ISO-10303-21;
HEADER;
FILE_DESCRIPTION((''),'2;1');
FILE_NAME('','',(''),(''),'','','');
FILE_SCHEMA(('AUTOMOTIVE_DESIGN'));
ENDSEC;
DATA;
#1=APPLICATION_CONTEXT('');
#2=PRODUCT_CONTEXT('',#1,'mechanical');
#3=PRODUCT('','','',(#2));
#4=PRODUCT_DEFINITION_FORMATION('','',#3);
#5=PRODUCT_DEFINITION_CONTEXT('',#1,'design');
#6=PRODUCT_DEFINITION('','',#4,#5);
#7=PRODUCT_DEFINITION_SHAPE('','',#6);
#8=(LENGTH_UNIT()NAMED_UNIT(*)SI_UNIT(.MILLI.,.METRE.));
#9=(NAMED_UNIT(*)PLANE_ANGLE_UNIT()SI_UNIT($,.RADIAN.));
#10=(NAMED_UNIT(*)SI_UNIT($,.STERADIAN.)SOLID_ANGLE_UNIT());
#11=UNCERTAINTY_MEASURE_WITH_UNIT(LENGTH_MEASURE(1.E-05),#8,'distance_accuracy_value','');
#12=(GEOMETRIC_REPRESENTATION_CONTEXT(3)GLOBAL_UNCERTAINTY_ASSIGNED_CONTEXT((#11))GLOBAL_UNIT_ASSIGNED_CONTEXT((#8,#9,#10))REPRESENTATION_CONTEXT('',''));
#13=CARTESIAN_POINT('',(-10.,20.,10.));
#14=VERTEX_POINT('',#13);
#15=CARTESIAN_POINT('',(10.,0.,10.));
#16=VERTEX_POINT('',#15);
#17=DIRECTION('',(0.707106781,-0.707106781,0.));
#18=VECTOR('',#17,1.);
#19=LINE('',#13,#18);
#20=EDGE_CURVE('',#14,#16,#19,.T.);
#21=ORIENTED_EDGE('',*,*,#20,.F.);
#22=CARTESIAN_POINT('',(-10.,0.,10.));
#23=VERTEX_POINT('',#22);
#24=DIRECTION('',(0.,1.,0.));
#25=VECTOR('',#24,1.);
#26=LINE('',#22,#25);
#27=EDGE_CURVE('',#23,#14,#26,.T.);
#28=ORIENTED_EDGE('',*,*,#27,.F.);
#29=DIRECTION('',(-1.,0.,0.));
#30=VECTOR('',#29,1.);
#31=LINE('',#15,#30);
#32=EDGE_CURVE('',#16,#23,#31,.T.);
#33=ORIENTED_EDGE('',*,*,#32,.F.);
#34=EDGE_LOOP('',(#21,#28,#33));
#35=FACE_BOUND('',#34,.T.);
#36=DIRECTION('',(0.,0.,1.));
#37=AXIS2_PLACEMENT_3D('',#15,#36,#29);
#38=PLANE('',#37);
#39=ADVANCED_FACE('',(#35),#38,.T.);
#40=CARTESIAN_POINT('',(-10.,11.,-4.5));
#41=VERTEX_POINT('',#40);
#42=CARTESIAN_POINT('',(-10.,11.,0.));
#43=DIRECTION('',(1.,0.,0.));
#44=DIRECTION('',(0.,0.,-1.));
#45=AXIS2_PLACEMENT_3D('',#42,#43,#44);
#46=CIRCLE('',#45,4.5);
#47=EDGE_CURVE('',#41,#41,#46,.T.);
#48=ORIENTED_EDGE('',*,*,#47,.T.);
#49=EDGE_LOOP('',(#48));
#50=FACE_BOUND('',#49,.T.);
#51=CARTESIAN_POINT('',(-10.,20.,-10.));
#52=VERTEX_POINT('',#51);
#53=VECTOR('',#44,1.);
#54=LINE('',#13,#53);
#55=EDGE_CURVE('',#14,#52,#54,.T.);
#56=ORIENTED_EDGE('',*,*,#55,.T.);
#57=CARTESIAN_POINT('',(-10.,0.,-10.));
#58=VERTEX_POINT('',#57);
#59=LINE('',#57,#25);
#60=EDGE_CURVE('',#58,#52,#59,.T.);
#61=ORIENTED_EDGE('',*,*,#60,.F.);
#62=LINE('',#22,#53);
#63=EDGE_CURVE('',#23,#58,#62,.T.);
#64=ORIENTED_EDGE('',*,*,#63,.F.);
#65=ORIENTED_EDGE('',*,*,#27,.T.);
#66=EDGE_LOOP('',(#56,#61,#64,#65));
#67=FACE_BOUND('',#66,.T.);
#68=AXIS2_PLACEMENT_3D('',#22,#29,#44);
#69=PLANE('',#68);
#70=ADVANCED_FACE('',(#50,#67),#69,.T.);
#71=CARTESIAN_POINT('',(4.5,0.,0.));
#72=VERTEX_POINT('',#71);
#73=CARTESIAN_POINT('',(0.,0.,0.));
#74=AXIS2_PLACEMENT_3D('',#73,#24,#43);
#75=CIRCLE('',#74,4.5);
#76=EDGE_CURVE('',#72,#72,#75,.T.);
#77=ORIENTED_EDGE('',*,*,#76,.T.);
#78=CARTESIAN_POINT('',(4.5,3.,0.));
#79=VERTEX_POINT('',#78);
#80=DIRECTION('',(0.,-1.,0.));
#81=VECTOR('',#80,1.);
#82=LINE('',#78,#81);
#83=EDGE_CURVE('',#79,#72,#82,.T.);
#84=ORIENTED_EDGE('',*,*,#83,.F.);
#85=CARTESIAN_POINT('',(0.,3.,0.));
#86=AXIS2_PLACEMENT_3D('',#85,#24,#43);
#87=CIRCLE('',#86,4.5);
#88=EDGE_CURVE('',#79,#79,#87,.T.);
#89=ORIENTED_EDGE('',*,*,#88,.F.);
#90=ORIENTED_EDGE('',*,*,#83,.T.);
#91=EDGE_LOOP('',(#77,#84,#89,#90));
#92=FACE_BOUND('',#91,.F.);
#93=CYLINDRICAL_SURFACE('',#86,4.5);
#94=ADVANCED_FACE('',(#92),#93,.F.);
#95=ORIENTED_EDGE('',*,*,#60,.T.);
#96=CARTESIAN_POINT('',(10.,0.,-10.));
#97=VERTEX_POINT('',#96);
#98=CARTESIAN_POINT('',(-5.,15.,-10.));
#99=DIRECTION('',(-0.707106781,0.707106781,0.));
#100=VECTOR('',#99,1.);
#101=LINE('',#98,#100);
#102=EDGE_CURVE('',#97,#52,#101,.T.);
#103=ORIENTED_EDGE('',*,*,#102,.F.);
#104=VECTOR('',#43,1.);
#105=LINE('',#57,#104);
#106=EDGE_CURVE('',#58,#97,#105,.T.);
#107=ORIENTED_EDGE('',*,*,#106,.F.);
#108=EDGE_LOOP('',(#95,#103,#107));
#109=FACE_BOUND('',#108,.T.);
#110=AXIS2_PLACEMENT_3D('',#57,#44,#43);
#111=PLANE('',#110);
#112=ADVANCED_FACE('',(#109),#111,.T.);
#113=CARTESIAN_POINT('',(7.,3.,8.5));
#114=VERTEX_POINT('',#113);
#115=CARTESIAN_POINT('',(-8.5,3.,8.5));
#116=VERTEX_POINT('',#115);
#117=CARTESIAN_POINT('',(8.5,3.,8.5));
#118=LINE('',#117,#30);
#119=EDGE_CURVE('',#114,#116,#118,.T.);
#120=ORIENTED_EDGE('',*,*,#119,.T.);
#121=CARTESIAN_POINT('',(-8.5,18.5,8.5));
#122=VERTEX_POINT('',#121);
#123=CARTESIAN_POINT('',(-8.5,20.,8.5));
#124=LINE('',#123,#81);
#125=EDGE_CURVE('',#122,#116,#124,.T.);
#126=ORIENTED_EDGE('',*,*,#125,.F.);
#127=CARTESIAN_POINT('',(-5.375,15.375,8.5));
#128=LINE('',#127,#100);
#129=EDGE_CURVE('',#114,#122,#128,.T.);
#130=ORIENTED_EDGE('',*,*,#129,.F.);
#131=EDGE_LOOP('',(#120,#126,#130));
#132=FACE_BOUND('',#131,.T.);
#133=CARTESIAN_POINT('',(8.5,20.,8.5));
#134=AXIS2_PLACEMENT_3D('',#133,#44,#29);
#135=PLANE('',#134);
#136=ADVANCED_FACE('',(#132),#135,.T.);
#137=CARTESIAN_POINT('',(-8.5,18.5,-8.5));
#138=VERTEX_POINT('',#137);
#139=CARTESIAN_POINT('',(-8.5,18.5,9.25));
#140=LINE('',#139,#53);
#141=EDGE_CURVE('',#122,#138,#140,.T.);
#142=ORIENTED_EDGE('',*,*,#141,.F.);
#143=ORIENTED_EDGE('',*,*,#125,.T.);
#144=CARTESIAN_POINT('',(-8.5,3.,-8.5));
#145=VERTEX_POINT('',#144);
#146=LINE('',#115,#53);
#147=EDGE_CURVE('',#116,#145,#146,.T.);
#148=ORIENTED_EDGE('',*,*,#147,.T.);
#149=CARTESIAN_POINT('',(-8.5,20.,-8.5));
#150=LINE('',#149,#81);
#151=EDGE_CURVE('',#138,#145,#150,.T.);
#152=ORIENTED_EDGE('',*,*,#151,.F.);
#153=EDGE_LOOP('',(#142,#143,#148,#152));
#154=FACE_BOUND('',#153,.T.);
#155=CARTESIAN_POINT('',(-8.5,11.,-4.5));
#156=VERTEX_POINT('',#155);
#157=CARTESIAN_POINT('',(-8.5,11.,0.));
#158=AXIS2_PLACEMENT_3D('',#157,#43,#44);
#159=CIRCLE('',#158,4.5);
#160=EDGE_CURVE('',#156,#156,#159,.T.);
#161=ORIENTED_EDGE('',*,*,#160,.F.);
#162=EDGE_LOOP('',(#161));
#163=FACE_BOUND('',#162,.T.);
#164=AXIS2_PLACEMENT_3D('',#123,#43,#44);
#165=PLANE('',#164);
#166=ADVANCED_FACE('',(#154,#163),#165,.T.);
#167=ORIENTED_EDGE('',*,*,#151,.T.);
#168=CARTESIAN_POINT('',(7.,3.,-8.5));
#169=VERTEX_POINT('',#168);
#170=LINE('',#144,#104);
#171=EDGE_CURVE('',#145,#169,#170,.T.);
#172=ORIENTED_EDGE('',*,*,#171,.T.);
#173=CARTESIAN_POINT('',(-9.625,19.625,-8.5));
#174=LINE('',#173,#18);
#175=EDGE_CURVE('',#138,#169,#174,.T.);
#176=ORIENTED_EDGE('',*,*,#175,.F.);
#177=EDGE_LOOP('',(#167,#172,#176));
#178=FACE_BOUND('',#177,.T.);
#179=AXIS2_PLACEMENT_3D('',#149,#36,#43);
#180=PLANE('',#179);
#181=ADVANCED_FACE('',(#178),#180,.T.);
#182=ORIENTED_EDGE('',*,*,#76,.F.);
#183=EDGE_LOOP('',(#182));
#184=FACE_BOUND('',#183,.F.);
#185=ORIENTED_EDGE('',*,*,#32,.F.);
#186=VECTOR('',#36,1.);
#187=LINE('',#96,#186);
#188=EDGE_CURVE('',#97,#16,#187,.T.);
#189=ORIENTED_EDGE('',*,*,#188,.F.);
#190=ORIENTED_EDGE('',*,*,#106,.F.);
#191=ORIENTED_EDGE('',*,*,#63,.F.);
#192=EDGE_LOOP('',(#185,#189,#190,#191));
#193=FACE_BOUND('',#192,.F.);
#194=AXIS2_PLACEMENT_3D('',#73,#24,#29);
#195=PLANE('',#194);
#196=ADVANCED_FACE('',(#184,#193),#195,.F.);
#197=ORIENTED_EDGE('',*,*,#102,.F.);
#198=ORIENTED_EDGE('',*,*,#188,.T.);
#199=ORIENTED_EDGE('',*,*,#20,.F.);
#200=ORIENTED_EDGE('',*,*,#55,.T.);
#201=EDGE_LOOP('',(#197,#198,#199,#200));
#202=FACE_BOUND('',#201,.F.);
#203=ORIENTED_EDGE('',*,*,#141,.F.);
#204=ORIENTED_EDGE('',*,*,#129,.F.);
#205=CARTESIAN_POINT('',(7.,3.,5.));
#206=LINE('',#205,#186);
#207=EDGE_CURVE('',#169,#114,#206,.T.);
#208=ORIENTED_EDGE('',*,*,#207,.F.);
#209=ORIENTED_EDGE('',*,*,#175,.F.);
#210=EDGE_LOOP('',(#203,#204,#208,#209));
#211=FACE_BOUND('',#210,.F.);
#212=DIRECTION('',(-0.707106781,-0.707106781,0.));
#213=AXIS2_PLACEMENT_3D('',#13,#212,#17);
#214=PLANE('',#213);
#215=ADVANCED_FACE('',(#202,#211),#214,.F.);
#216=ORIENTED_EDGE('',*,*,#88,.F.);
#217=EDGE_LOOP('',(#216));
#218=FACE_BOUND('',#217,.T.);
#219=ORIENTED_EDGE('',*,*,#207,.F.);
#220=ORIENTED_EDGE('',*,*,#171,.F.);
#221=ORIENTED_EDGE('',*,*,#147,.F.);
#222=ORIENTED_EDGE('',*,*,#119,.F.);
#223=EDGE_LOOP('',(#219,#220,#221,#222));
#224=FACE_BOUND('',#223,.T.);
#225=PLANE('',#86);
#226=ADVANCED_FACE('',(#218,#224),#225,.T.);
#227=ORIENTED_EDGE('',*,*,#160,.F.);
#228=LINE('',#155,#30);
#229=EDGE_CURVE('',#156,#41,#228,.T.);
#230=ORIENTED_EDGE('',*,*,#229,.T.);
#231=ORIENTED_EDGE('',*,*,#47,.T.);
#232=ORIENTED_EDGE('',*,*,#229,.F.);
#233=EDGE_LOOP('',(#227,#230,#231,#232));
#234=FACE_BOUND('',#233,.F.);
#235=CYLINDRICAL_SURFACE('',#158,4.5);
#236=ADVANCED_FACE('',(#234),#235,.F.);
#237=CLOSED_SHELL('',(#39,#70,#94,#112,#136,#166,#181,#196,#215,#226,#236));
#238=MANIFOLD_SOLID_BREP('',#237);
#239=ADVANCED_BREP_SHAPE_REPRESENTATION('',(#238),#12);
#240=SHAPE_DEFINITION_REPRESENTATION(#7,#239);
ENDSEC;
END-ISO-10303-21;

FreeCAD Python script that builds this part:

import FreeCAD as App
import Part
import Sketcher
from FreeCAD import Vector
Q = App.Units.Quantity

doc = App.newDocument("Part")
body = doc.addObject("PartDesign::Body", "Body")

# Sketch on XZ plane
sketch1 = body.newObject("Sketcher::SketchObject", "Sketch")
sketch1.AttachmentSupport = (doc.getObject("XZ_Plane"), [""])
sketch1.MapMode = "FlatFace"
sketch1.addGeometry(Part.LineSegment(Vector(-10, 10, 0), Vector(10, 10, 0)), False)
sketch1.addGeometry(Part.LineSegment(Vector(10, 10, 0), Vector(10, -10, 0)), False)
sketch1.addGeometry(Part.LineSegment(Vector(10, -10, 0), Vector(-10, -10, 0)), False)
sketch1.addGeometry(Part.LineSegment(Vector(-10, -10, 0), Vector(-10, 10, 0)), False)
sketch1.addConstraint(Sketcher.Constraint("Coincident", 0, 2, 1, 1))
sketch1.addConstraint(Sketcher.Constraint("Coincident", 1, 2, 2, 1))
sketch1.addConstraint(Sketcher.Constraint("Coincident", 2, 2, 3, 1))
sketch1.addConstraint(Sketcher.Constraint("Coincident", 3, 2, 0, 1))
sketch1.addConstraint(Sketcher.Constraint("Horizontal", 0))
sketch1.addConstraint(Sketcher.Constraint("Vertical", 1))
sketch1.addConstraint(Sketcher.Constraint("Horizontal", 2))
sketch1.addConstraint(Sketcher.Constraint("Vertical", 3))
sketch1.addConstraint(Sketcher.Constraint("Symmetric", 0, 2, 2, 2, -1, 1))
sketch1.addConstraint(Sketcher.Constraint("Equal", 2, 1))
sketch1.addConstraint(Sketcher.Constraint("DistanceX", 0, 1, 0, 2, Q("20 mm")))
pad1 = body.newObject("PartDesign::Pad", "Pad")
pad1.Profile = sketch1
pad1.Length = 20
pad1.Reversed = True

# Sketch on XZ plane
sketch2 = body.newObject("Sketcher::SketchObject", "Sketch001")
sketch2.AttachmentSupport = (doc.getObject("XZ_Plane"), [""])
sketch2.MapMode = "FlatFace"
sketch2.AttachmentOffset = App.Placement(Vector(0, 0, -20), App.Rotation())
sketch2.addGeometry(Part.LineSegment(Vector(-8, 8, 0), Vector(8, 8, 0)), False)
sketch2.addGeometry(Part.LineSegment(Vector(8, 8, 0), Vector(8, -8, 0)), False)
sketch2.addGeometry(Part.LineSegment(Vector(8, -8, 0), Vector(-8, -8, 0)), False)
sketch2.addGeometry(Part.LineSegment(Vector(-8, -8, 0), Vector(-8, 8, 0)), False)
sketch2.addConstraint(Sketcher.Constraint("Coincident", 0, 2, 1, 1))
sketch2.addConstraint(Sketcher.Constraint("Coincident", 1, 2, 2, 1))
sketch2.addConstraint(Sketcher.Constraint("Coincident", 2, 2, 3, 1))
sketch2.addConstraint(Sketcher.Constraint("Coincident", 3, 2, 0, 1))
sketch2.addConstraint(Sketcher.Constraint("Horizontal", 0))
sketch2.addConstraint(Sketcher.Constraint("Vertical", 1))
sketch2.addConstraint(Sketcher.Constraint("Horizontal", 2))
sketch2.addConstraint(Sketcher.Constraint("Vertical", 3))
sketch2.addConstraint(Sketcher.Constraint("Symmetric", 0, 2, 2, 2, -1, 1))
sketch2.addConstraint(Sketcher.Constraint("Equal", 2, 1))
sketch2.addConstraint(Sketcher.Constraint("DistanceX", 0, 1, 0, 2, Q("17 mm")))
pocket1 = body.newObject("PartDesign::Pocket", "Pocket")
pocket1.Profile = sketch2
pocket1.Length = 17
pocket1.Reversed = True

# Sketch on XY plane
sketch3 = body.newObject("Sketcher::SketchObject", "Sketch002")
sketch3.AttachmentSupport = (doc.getObject("XY_Plane"), [""])
sketch3.MapMode = "FlatFace"
sketch3.AttachmentOffset = App.Placement(Vector(0, 0, 10), App.Rotation())
sketch3.addGeometry(Part.LineSegment(Vector(10, 20, 0), Vector(-10, 20, 0)), False)
sketch3.addGeometry(Part.LineSegment(Vector(-10, 20, 0), Vector(10, 0, 0)), False)
sketch3.addGeometry(Part.LineSegment(Vector(10, 0, 0), Vector(10, 20, 0)), False)
sketch3.addConstraint(Sketcher.Constraint("Coincident", 0, 2, 1, 1))
sketch3.addConstraint(Sketcher.Constraint("Coincident", 1, 2, 2, 1))
sketch3.addConstraint(Sketcher.Constraint("Coincident", 2, 2, 0, 1))
sketch3.addConstraint(Sketcher.Constraint("Horizontal", 0))
sketch3.addConstraint(Sketcher.Constraint("Vertical", 2))
sketch3.addConstraint(Sketcher.Constraint("PointOnObject", 1, 2, -1))
sketch3.addConstraint(Sketcher.Constraint("Equal", 0, 2))
sketch3.addConstraint(Sketcher.Constraint("DistanceX", 0, 2, 0, 1, Q("20 mm")))
sketch3.addConstraint(Sketcher.Constraint("DistanceX", 0, 2, -1, 1, Q("10 mm")))
pocket2 = body.newObject("PartDesign::Pocket", "Pocket001")
pocket2.Profile = sketch3
pocket2.Type = "ThroughAll"

# Sketch on YZ plane
sketch4 = body.newObject("Sketcher::SketchObject", "Sketch003")
sketch4.AttachmentSupport = (doc.getObject("YZ_Plane"), [""])
sketch4.MapMode = "FlatFace"
sketch4.AttachmentOffset = App.Placement(Vector(0, 0, -8.5), App.Rotation())
sketch4.addGeometry(Part.Circle(Vector(11, 0, 0), Vector(0, 0, 1), 4.5), False)
sketch4.addConstraint(Sketcher.Constraint("PointOnObject", 0, 3, -1))
sketch4.addConstraint(Sketcher.Constraint("Diameter", 0, Q("9 mm")))
sketch4.addConstraint(Sketcher.Constraint("DistanceX", -1, 1, 0, 3, Q("11 mm")))
pocket3 = body.newObject("PartDesign::Pocket", "Pocket002")
pocket3.Profile = sketch4
pocket3.Length = 10

# Sketch on XZ plane
sketch5 = body.newObject("Sketcher::SketchObject", "Sketch004")
sketch5.AttachmentSupport = (doc.getObject("XZ_Plane"), [""])
sketch5.MapMode = "FlatFace"
sketch5.AttachmentOffset = App.Placement(Vector(0, 0, -3), App.Rotation())
sketch5.addGeometry(Part.Circle(Vector(0, 0, 0), Vector(0, 0, 1), 4.5), False)
sketch5.addConstraint(Sketcher.Constraint("Coincident", 0, 3, -1, 1))
sketch5.addConstraint(Sketcher.Constraint("Diameter", 0, Q("9 mm")))
pocket4 = body.newObject("PartDesign::Pocket", "Pocket003")
pocket4.Profile = sketch5
pocket4.Length = 10
pocket4.Reversed = True

doc.recompute()
